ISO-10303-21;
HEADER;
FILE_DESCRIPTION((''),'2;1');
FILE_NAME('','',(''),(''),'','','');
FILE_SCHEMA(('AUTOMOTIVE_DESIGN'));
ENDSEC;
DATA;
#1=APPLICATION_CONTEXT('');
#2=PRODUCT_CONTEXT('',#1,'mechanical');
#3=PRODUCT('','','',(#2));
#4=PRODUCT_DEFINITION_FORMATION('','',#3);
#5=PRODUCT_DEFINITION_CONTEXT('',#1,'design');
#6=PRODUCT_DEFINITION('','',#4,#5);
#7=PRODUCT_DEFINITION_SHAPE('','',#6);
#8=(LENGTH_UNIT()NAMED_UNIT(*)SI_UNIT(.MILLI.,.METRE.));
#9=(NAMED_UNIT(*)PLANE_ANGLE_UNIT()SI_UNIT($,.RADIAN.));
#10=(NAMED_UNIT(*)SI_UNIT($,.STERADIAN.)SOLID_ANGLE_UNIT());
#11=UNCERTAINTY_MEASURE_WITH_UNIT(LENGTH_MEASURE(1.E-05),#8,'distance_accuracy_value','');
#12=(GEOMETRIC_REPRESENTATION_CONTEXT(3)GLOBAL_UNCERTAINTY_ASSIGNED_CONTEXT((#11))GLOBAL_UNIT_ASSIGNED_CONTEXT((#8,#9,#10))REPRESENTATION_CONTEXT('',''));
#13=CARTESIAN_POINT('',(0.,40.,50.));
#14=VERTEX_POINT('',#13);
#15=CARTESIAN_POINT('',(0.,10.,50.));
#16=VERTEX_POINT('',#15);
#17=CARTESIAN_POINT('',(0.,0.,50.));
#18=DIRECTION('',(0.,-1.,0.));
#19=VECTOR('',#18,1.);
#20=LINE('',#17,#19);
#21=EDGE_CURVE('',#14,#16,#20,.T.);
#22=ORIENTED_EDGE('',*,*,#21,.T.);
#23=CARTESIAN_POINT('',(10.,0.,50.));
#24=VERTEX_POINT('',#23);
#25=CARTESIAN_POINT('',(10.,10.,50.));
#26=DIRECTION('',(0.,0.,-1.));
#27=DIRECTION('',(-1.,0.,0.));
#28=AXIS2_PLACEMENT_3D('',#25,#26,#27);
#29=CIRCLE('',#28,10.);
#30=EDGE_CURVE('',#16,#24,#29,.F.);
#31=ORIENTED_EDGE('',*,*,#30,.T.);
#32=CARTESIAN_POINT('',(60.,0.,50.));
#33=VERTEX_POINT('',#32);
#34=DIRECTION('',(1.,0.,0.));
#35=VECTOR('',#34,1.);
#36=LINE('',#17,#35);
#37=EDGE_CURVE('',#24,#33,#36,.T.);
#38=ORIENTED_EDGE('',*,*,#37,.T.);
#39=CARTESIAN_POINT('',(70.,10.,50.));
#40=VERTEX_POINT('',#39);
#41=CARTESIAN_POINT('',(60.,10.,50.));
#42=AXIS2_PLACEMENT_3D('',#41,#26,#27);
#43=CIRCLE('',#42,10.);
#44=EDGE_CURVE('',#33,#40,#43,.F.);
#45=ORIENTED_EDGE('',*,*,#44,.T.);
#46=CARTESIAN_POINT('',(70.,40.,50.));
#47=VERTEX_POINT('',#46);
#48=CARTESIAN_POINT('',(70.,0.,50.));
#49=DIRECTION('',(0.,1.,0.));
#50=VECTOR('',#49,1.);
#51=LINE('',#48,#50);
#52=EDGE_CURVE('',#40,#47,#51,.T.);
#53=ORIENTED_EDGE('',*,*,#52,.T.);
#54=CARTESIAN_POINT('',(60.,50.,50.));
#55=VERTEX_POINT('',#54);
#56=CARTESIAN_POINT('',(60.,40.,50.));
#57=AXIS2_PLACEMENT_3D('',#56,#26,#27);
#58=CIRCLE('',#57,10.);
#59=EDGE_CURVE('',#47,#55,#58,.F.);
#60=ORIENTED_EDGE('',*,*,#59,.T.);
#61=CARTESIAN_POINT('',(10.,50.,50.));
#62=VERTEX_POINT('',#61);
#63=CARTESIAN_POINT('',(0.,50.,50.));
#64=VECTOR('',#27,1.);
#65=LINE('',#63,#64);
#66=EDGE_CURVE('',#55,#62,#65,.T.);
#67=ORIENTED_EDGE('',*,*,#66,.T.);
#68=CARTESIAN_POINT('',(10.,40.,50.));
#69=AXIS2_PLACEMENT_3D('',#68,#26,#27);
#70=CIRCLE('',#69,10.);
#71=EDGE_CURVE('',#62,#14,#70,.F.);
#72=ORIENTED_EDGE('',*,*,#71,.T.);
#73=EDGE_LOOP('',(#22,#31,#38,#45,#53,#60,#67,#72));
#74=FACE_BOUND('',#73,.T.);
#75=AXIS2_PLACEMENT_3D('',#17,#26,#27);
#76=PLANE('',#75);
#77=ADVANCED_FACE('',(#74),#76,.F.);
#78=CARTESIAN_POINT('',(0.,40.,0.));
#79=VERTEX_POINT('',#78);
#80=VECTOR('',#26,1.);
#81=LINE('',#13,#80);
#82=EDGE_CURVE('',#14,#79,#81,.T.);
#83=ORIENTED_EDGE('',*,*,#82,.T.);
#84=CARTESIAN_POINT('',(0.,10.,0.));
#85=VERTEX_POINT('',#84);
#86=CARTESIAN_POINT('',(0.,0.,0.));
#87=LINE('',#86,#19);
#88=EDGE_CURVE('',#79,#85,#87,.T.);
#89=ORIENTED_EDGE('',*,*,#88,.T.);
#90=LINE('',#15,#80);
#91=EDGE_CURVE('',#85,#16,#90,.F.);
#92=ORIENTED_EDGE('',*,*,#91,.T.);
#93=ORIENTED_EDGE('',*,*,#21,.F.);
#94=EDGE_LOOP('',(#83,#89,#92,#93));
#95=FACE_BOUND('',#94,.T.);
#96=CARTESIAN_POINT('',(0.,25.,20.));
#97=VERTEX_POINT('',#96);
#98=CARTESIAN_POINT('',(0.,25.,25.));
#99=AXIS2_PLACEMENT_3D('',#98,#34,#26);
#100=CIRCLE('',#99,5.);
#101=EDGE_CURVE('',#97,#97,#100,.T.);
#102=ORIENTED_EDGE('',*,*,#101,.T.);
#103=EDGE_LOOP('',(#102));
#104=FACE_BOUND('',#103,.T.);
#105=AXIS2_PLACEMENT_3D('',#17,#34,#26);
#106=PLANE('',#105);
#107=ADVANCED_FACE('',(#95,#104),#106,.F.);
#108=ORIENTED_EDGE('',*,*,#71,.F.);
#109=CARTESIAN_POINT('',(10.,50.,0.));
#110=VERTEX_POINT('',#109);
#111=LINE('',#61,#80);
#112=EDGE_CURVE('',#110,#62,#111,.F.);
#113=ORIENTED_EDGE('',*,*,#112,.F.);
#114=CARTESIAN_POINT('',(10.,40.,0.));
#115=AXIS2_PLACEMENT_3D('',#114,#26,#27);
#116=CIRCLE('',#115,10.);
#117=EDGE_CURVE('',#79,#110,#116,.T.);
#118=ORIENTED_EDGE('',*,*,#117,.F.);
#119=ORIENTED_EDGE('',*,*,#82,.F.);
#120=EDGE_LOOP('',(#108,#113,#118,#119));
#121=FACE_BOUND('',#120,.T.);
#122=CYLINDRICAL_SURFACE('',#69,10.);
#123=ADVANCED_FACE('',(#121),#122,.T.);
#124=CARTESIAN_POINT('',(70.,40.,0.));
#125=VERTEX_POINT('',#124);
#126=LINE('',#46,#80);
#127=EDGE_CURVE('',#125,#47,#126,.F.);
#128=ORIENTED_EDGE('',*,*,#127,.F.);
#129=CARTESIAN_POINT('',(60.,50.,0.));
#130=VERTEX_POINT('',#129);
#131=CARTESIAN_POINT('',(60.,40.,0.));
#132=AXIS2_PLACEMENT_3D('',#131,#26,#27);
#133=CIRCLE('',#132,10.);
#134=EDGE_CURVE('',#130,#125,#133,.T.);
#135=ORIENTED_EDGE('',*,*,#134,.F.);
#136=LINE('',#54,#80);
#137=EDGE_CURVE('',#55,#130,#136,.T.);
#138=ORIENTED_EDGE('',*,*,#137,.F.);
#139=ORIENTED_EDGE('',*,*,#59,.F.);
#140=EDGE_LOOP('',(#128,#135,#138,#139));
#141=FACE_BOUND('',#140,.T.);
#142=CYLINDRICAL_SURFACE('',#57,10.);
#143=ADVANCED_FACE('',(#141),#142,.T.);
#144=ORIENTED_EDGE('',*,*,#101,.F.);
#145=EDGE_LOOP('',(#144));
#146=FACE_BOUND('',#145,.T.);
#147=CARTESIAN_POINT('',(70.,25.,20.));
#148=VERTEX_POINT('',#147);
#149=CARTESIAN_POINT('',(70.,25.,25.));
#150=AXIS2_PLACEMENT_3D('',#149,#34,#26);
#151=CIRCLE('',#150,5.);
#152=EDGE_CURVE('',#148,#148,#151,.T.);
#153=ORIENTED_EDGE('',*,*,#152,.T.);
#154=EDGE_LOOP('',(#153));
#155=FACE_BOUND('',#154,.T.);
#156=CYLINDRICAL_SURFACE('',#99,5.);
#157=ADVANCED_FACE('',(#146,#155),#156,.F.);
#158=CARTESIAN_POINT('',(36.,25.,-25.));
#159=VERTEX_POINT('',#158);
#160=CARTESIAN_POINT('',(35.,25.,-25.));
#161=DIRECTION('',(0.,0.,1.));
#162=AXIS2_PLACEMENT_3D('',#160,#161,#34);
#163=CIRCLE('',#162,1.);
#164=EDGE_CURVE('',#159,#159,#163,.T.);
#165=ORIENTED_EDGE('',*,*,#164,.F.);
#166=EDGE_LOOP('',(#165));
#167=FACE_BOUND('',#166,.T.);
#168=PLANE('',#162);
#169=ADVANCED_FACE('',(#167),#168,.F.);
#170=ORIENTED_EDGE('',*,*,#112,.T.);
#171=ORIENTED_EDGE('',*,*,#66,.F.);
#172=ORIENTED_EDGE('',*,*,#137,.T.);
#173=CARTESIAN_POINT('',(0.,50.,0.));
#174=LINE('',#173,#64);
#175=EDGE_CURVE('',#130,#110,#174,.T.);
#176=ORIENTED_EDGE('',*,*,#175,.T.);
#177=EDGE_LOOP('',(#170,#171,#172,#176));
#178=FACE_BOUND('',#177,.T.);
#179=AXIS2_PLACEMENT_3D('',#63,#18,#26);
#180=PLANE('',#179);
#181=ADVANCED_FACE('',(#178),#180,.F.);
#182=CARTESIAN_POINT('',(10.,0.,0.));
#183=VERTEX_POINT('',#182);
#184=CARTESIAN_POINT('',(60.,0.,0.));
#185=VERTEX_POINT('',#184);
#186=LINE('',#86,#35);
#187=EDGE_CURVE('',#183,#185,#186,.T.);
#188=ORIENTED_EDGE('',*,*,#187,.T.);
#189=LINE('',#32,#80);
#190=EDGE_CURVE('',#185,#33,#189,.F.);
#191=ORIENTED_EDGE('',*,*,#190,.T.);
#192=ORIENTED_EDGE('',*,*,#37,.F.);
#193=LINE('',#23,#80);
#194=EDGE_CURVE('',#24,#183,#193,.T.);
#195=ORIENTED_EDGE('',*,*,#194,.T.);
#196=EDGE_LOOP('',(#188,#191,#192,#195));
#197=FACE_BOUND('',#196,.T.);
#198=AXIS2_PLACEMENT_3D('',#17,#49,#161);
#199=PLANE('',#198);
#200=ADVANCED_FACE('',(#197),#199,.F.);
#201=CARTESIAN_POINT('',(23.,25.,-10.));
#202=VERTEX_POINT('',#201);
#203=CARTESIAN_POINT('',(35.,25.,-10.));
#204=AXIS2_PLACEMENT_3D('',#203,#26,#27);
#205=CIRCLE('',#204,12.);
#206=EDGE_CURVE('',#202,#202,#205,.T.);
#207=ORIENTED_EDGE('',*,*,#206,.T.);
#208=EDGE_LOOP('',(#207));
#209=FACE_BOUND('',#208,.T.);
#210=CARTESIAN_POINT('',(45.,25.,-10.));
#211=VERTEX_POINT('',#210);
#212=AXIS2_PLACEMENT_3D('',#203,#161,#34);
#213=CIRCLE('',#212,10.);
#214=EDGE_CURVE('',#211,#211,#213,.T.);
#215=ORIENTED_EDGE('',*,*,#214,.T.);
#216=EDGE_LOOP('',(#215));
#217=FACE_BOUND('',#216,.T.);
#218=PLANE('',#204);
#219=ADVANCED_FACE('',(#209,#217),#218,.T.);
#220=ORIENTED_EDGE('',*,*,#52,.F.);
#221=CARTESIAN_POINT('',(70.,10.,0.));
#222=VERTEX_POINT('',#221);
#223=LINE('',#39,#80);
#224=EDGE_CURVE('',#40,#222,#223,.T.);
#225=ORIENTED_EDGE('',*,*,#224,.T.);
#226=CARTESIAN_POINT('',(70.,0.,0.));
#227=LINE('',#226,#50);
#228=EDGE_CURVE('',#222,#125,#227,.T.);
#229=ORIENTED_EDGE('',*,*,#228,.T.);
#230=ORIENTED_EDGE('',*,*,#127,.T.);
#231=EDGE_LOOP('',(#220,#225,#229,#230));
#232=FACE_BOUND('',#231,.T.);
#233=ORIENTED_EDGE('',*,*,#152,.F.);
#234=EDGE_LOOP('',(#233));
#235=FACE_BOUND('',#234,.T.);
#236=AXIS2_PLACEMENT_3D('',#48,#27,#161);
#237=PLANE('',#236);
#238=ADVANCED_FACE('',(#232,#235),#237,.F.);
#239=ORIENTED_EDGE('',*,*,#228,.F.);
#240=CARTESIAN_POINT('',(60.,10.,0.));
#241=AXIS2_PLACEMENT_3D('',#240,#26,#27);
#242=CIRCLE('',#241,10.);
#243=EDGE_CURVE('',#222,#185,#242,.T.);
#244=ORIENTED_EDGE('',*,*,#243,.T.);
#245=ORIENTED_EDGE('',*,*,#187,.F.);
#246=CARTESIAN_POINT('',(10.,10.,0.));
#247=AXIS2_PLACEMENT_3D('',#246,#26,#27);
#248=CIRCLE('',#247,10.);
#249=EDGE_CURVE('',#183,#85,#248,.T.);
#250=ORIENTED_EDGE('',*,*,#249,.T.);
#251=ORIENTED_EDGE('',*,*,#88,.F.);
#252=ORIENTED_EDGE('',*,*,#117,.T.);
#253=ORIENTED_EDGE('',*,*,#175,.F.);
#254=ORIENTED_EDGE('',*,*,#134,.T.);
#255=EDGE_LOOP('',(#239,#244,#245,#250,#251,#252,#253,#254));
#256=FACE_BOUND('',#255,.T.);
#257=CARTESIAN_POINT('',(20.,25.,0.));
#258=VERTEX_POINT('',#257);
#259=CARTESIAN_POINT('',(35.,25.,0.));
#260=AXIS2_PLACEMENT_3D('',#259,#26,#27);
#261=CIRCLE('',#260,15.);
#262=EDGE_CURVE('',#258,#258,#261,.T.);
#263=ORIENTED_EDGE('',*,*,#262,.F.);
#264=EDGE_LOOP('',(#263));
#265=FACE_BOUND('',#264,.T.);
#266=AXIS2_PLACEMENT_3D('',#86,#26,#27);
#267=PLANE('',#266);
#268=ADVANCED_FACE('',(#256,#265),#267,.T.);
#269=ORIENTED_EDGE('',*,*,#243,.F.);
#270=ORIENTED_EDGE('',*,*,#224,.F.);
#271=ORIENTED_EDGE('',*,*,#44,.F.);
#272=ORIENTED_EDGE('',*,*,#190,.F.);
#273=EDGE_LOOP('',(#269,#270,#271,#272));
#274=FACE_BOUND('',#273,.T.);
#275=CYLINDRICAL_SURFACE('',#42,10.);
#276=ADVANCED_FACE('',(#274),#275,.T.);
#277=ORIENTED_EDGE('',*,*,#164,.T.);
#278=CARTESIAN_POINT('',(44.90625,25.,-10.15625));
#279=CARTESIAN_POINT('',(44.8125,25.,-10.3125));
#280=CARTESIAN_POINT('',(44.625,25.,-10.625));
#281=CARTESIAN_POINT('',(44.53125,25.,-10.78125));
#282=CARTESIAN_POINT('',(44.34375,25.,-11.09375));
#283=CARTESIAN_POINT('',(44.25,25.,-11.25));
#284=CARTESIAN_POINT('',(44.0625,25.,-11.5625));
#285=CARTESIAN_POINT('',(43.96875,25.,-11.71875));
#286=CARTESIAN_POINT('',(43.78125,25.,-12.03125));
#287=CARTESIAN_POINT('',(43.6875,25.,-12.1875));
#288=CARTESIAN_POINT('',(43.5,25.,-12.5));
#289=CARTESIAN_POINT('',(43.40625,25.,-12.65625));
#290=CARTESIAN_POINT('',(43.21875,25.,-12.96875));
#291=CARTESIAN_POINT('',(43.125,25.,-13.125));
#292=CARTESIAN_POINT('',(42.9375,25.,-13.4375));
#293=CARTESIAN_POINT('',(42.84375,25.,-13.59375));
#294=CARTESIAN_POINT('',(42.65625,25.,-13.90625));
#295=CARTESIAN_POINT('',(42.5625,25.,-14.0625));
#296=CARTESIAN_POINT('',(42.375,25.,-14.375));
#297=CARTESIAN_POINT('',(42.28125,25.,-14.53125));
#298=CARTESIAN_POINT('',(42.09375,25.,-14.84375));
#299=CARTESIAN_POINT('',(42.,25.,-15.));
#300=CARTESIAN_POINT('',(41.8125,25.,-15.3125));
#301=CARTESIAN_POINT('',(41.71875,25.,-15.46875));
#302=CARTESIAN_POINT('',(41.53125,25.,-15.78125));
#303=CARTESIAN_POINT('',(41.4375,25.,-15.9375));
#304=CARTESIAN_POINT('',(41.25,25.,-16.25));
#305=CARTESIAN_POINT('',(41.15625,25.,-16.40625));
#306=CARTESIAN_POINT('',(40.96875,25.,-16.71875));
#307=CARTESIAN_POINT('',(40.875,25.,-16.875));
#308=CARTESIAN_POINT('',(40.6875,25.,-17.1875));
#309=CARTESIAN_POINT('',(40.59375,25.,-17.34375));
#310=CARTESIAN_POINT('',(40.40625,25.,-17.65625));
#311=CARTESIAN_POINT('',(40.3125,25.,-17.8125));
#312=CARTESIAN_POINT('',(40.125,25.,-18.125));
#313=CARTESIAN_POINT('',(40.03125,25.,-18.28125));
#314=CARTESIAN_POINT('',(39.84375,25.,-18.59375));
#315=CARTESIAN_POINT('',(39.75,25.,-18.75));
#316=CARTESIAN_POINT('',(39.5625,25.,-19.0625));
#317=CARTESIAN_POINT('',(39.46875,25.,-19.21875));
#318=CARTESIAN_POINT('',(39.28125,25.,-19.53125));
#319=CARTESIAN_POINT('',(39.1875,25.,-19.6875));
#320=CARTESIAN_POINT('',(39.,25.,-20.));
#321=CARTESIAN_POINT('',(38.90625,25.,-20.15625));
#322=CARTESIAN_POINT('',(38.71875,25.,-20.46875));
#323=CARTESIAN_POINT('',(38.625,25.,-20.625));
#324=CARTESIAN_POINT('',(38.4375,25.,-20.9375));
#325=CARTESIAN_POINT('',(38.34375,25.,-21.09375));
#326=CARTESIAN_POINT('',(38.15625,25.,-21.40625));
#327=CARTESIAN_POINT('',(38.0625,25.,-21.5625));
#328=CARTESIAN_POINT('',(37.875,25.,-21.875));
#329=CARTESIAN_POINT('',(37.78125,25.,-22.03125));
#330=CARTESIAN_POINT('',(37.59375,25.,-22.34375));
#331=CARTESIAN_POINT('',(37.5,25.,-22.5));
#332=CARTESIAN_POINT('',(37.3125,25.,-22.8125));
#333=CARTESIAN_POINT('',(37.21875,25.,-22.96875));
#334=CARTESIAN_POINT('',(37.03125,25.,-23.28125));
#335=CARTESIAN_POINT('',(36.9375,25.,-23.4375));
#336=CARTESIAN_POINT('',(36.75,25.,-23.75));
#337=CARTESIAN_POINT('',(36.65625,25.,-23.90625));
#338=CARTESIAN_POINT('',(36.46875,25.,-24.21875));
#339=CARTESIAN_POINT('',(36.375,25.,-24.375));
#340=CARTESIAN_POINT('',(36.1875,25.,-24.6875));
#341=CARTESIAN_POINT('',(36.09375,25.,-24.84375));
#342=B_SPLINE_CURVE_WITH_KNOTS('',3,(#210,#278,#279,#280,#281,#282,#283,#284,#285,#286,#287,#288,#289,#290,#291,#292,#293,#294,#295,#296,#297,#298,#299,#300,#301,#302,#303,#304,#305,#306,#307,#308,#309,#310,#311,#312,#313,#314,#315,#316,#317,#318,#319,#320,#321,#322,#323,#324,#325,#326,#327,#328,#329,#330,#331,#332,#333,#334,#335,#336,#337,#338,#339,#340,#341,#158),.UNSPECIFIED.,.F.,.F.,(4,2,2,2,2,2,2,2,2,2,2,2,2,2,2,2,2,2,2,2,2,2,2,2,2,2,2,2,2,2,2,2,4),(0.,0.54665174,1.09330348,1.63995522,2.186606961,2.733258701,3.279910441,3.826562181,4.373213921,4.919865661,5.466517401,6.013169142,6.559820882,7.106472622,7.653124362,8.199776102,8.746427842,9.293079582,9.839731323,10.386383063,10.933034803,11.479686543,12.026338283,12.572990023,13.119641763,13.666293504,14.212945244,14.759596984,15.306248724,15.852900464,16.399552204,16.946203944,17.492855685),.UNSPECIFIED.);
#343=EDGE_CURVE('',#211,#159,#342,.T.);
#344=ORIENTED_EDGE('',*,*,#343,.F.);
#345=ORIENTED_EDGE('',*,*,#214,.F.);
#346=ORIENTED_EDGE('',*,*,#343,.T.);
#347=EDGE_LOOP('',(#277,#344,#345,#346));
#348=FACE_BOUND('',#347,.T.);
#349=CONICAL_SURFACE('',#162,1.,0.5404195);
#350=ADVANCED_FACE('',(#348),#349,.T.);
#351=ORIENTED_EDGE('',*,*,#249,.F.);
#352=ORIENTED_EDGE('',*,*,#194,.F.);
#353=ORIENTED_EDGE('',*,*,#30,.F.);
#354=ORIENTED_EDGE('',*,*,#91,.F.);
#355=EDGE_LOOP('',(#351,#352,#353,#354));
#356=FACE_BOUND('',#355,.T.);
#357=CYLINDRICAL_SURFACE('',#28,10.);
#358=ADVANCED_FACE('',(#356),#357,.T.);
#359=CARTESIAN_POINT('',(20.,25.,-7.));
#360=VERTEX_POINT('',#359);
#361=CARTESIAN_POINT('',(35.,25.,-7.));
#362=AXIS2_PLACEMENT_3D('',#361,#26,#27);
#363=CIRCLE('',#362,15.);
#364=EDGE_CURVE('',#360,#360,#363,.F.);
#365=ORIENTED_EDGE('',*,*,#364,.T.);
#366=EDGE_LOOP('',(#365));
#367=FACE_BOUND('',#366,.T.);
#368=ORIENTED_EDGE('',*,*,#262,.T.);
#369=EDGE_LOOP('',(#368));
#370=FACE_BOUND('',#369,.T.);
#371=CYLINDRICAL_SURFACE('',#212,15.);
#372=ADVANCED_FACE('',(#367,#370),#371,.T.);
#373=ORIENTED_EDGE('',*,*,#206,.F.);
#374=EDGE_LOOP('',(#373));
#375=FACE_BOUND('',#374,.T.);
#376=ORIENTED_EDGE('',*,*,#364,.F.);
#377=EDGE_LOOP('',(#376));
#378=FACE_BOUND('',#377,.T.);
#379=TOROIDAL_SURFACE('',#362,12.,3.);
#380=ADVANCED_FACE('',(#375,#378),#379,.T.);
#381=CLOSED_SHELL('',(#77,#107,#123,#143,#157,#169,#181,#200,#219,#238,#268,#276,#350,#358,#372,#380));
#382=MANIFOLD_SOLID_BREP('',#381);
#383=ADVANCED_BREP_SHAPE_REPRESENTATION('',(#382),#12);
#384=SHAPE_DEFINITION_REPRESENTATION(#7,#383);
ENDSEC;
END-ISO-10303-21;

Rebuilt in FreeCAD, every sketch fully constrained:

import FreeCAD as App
import Part
import Sketcher
from FreeCAD import Vector


def edges_at(feature, points):
    """Names of the edges that pass closest to the given points."""
    edges = feature.Shape.Edges
    near = lambda p: min(range(len(edges)), key=lambda i: edges[i].distToShape(Part.Vertex(*p))[0])
    return sorted({f"Edge{near(p) + 1}" for p in points})

doc = App.newDocument("Part")
body = doc.addObject("PartDesign::Body", "Body")

sketch1 = body.newObject("Sketcher::SketchObject", "Sketch")
sketch1.AttachmentSupport = (doc.getObject("XY_Plane"), [""])
sketch1.MapMode = "FlatFace"
sketch1.addGeometry(Part.LineSegment(Vector(0, 50, 0), Vector(0, 0, 0)), False)
sketch1.addGeometry(Part.LineSegment(Vector(0, 0, 0), Vector(70, 0, 0)), False)
sketch1.addGeometry(Part.LineSegment(Vector(70, 0, 0), Vector(70, 50, 0)), False)
sketch1.addGeometry(Part.LineSegment(Vector(70, 50, 0), Vector(0, 50, 0)), False)
sketch1.addConstraint(Sketcher.Constraint("Coincident", 0, 2, 1, 1))
sketch1.addConstraint(Sketcher.Constraint("Coincident", 1, 2, 2, 1))
sketch1.addConstraint(Sketcher.Constraint("Coincident", 2, 2, 3, 1))
sketch1.addConstraint(Sketcher.Constraint("Coincident", 3, 2, 0, 1))
sketch1.addConstraint(Sketcher.Constraint("Vertical", 0))
sketch1.addConstraint(Sketcher.Constraint("Horizontal", 1))
sketch1.addConstraint(Sketcher.Constraint("Vertical", 2))
sketch1.addConstraint(Sketcher.Constraint("Horizontal", 3))
sketch1.addConstraint(Sketcher.Constraint("Coincident", 0, 2, -1, 1))
sketch1.addConstraint(Sketcher.Constraint("DistanceX", 1, 1, 1, 2, 70.0))
sketch1.addConstraint(Sketcher.Constraint("DistanceY", 0, 2, 0, 1, 50.0))
pad1 = body.newObject("PartDesign::Pad", "Pad")
pad1.Profile = sketch1
pad1.Length = 50

sketch2 = body.newObject("Sketcher::SketchObject", "Sketch001")
sketch2.AttachmentSupport = (doc.getObject("YZ_Plane"), [""])
sketch2.MapMode = "FlatFace"
sketch2.AttachmentOffset = App.Placement(Vector(0, 0, 70), App.Rotation())
sketch2.addGeometry(Part.Circle(Vector(25, 25, 0), Vector(0, 0, 1), 5), False)
sketch2.addConstraint(Sketcher.Constraint("Diameter", 0, 10.0))
sketch2.addConstraint(Sketcher.Constraint("DistanceX", -1, 1, 0, 3, 25.0))
sketch2.addConstraint(Sketcher.Constraint("DistanceY", -1, 1, 0, 3, 25.0))
pocket1 = body.newObject("PartDesign::Pocket", "Pocket")
pocket1.Profile = sketch2
pocket1.Type = "ThroughAll"

sketch3 = body.newObject("Sketcher::SketchObject", "Sketch002")
sketch3.AttachmentSupport = (doc.getObject("XY_Plane"), [""])
sketch3.MapMode = "FlatFace"
sketch3.addGeometry(Part.Circle(Vector(35, 25, 0), Vector(0, 0, 1), 15), False)
sketch3.addConstraint(Sketcher.Constraint("Diameter", 0, 30.0))
sketch3.addConstraint(Sketcher.Constraint("DistanceX", -1, 1, 0, 3, 35.0))
sketch3.addConstraint(Sketcher.Constraint("DistanceY", -1, 1, 0, 3, 25.0))
pad2 = body.newObject("PartDesign::Pad", "Pad001")
pad2.Profile = sketch3
pad2.Length = 10
pad2.Reversed = True

sketch4 = body.newObject("Sketcher::SketchObject", "Sketch003")
sketch4.AttachmentSupport = (doc.getObject("YZ_Plane"), [""])
sketch4.MapMode = "FlatFace"
sketch4.AttachmentOffset = App.Placement(Vector(0, 0, 35), App.Rotation())
sketch4.addGeometry(Part.LineSegment(Vector(35, -10, 0), Vector(25, -10, 0)), False)
sketch4.addGeometry(Part.LineSegment(Vector(25, -10, 0), Vector(25, -25, 0)), False)
sketch4.addGeometry(Part.LineSegment(Vector(25, -25, 0), Vector(26, -25, 0)), False)
sketch4.addGeometry(Part.LineSegment(Vector(26, -25, 0), Vector(35, -10, 0)), False)
sketch4.addGeometry(Part.LineSegment(Vector(25, -10, 0), Vector(25, -25, 0)), True)
sketch4.addConstraint(Sketcher.Constraint("Coincident", 0, 2, 1, 1))
sketch4.addConstraint(Sketcher.Constraint("Coincident", 1, 2, 2, 1))
sketch4.addConstraint(Sketcher.Constraint("Coincident", 2, 2, 3, 1))
sketch4.addConstraint(Sketcher.Constraint("Coincident", 3, 2, 0, 1))
sketch4.addConstraint(Sketcher.Constraint("Horizontal", 0))
sketch4.addConstraint(Sketcher.Constraint("Vertical", 1))
sketch4.addConstraint(Sketcher.Constraint("Horizontal", 2))
sketch4.addConstraint(Sketcher.Constraint("Vertical", 4))
sketch4.addConstraint(Sketcher.Constraint("Coincident", 4, 1, 0, 2))
sketch4.addConstraint(Sketcher.Constraint("Horizontal", 2, 2, 4, 2))
sketch4.addConstraint(Sketcher.Constraint("DistanceX", 0, 2, 0, 1, 10.0))
sketch4.addConstraint(Sketcher.Constraint("DistanceX", 2, 1, 2, 2, 1.0))
sketch4.addConstraint(Sketcher.Constraint("DistanceY", 1, 2, 1, 1, 15.0))
sketch4.addConstraint(Sketcher.Constraint("DistanceX", -1, 1, 0, 2, 25.0))
sketch4.addConstraint(Sketcher.Constraint("DistanceY", 0, 2, -1, 1, 10.0))
revolution = body.newObject("PartDesign::Revolution", "Revolution")
revolution.Profile = sketch4
revolution.ReferenceAxis = (sketch4, ["Axis0"])
revolution.Angle = 360
doc.recompute()

fillet = body.newObject("PartDesign::Fillet", "Fillet")
fillet.Base = (revolution, edges_at(revolution, [(50, 25, -10)]))
fillet.Radius = 3
doc.recompute()

fillet2 = body.newObject("PartDesign::Fillet", "Fillet001")
fillet2.Base = (fillet, edges_at(fillet, [
    (0, 50, 25),
    (70, 50, 25),
    (70, 0, 25),
    (0, 0, 25),
]))
fillet2.Radius = 10

doc.recompute()
